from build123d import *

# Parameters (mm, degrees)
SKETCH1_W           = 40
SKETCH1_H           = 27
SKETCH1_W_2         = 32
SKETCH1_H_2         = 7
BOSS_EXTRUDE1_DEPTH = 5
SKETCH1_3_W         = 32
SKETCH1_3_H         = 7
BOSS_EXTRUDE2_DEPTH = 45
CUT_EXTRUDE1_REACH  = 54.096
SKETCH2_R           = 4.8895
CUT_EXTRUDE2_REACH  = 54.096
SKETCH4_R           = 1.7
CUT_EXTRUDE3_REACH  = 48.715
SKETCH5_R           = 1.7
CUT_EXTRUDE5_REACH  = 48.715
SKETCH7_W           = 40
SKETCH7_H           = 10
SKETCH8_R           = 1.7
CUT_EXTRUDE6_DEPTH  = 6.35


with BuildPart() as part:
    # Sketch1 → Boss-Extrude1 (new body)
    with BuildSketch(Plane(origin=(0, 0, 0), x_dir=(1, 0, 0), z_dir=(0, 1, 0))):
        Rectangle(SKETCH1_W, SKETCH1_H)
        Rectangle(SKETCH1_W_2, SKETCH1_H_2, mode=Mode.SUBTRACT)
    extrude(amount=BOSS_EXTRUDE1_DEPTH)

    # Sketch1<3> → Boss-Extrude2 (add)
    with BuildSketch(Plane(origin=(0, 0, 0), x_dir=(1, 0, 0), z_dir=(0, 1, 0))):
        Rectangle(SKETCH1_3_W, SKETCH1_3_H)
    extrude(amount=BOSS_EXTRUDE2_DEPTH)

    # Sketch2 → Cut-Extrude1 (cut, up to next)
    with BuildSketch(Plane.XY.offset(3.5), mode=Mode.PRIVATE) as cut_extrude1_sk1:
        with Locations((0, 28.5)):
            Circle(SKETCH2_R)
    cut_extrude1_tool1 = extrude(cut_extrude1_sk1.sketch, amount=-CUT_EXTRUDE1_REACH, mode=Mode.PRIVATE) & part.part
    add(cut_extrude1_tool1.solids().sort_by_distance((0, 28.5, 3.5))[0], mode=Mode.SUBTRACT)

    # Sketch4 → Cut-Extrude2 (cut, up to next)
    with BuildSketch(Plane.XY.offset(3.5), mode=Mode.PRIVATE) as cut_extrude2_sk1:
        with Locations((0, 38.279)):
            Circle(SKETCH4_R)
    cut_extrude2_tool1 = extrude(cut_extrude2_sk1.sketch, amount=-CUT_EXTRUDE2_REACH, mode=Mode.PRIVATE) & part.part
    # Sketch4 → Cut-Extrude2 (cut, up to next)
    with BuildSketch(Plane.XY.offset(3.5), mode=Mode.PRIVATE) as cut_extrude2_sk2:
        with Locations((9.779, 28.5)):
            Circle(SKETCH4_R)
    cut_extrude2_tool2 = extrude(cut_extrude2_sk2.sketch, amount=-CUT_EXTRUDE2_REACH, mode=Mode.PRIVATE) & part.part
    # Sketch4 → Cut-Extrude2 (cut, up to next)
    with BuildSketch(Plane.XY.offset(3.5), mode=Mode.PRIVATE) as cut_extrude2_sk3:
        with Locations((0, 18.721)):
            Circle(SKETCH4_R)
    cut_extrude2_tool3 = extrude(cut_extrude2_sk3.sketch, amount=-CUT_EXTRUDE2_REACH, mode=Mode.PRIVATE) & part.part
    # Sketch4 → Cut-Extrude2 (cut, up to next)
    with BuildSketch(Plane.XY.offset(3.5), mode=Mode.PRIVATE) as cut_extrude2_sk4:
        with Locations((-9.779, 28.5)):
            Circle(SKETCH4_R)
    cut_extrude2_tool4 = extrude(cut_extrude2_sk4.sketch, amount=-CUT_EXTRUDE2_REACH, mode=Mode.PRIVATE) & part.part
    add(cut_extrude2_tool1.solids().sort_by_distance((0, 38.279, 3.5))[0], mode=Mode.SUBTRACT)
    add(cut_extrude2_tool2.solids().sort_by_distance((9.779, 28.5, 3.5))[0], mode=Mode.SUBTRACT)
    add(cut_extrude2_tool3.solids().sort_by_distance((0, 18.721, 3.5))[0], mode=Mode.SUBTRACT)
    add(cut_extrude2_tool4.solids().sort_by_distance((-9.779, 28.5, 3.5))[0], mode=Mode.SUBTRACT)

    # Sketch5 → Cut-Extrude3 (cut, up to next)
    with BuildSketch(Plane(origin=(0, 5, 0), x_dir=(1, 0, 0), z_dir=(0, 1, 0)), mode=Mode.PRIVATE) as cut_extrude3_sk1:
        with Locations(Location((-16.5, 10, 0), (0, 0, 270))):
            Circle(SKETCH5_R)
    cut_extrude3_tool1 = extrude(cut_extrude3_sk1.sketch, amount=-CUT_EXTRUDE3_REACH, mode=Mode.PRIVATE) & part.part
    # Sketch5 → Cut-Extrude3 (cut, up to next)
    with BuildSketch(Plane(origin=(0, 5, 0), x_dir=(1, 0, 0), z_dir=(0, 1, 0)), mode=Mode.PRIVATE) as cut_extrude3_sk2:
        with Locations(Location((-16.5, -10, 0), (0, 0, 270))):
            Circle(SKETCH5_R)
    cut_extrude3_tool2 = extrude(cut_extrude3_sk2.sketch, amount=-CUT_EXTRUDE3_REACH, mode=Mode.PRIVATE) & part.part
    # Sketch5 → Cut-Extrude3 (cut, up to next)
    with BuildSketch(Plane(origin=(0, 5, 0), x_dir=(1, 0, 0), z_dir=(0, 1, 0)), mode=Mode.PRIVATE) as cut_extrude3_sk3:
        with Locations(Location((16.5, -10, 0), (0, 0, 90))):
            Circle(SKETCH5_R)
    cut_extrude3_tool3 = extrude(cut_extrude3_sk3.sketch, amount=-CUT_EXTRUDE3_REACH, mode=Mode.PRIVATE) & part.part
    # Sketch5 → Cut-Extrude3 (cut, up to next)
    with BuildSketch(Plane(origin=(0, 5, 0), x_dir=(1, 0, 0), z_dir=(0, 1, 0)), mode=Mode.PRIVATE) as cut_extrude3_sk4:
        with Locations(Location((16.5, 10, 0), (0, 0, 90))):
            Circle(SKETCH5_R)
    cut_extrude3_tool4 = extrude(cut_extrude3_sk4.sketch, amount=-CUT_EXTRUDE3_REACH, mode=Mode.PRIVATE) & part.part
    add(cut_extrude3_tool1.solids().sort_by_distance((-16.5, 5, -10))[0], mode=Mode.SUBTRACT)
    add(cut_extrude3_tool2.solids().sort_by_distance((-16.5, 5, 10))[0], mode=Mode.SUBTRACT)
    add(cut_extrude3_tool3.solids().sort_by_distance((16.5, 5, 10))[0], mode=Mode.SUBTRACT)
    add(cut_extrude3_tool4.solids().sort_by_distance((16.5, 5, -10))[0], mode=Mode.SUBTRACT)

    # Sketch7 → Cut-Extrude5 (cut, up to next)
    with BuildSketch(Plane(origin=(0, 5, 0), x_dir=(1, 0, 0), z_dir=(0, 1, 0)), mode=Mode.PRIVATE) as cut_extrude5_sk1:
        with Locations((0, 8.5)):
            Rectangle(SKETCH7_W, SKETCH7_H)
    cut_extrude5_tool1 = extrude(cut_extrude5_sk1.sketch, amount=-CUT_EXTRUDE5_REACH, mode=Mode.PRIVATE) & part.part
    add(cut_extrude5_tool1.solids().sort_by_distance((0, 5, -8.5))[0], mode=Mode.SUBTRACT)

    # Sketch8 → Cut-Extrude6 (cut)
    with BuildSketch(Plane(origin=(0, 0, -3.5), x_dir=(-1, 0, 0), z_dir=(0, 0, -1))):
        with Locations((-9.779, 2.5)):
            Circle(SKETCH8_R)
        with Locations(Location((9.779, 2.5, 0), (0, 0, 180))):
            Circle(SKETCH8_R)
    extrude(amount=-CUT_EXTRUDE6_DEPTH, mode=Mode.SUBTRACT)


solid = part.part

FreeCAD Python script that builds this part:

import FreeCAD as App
import Part
import Sketcher

V = App.Vector


def add_polygon(sketch, points):
    """Adds a closed chain of lines whose ends are joined by coincident constraints."""
    first, n = sketch.GeometryCount, len(points)
    for a, b in zip(points, points[1:] + points[:1]):
        sketch.addGeometry(Part.LineSegment(App.Vector(*a, 0), App.Vector(*b, 0)), False)
    for i in range(n):
        sketch.addConstraint(Sketcher.Constraint("Coincident", first + i, 2, first + (i + 1) % n, 1))

doc = App.newDocument("Part")
body = doc.addObject("PartDesign::Body", "Body")

sketch1 = body.newObject("Sketcher::SketchObject", "Sketch")
sketch1.AttachmentSupport = (doc.getObject("XZ_Plane"), [""])
sketch1.MapMode = "FlatFace"
add_polygon(sketch1, [(-20, -14), (-20, 14), (20, 14), (20, -14)])
add_polygon(sketch1, [(16, 4), (-16, 4), (-16, -4), (16, -4)])
sketch1.addConstraint([
    Sketcher.Constraint("Vertical", 0),
    Sketcher.Constraint("Horizontal", 1),
    Sketcher.Constraint("Vertical", 2),
    Sketcher.Constraint("Horizontal", 3),
    Sketcher.Constraint("Horizontal", 4),
    Sketcher.Constraint("Vertical", 5),
    Sketcher.Constraint("Horizontal", 6),
    Sketcher.Constraint("Vertical", 7),
    Sketcher.Constraint("Symmetric", 0, 2, 2, 2, -1, 1),
    Sketcher.Constraint("Symmetric", 4, 2, 6, 2, -1, 1),
    Sketcher.Constraint("DistanceX", 1, 1, 1, 2, 40.0),
    Sketcher.Constraint("DistanceX", 4, 2, 4, 1, 32.0),
    Sketcher.Constraint("DistanceY", 0, 1, 0, 2, 27.0),
    Sketcher.Constraint("DistanceY", 5, 2, 5, 1, 7.0),
])
pad1 = body.newObject("PartDesign::Pad", "Pad")
pad1.Profile = sketch1
pad1.Length = 5
pad1.Reversed = True

sketch2 = body.newObject("Sketcher::SketchObject", "Sketch001")
sketch2.AttachmentSupport = (doc.getObject("XZ_Plane"), [""])
sketch2.MapMode = "FlatFace"
add_polygon(sketch2, [(-16, -4), (-16, 4), (16, 4), (16, -4)])
sketch2.addConstraint([
    Sketcher.Constraint("Vertical", 0),
    Sketcher.Constraint("Horizontal", 1),
    Sketcher.Constraint("Vertical", 2),
    Sketcher.Constraint("Horizontal", 3),
    Sketcher.Constraint("Symmetric", 0, 2, 2, 2, -1, 1),
    Sketcher.Constraint("DistanceX", 1, 1, 1, 2, 32.0),
    Sketcher.Constraint("DistanceY", 0, 1, 0, 2, 7.0),
])
pad2 = body.newObject("PartDesign::Pad", "Pad001")
pad2.Profile = sketch2
pad2.Length = 45
pad2.Reversed = True

sketch3 = body.newObject("Sketcher::SketchObject", "Sketch002")
sketch3.AttachmentSupport = (doc.getObject("XY_Plane"), [""])
sketch3.MapMode = "FlatFace"
sketch3.AttachmentOffset = App.Placement(V(0, 0, 3.5), App.Rotation())
sketch3.addGeometry(Part.Circle(V(0, 28.5, 0), V(0, 0, 1), 4.9), False)
sketch3.addConstraint([
    Sketcher.Constraint("PointOnObject", 0, 3, -2),
    Sketcher.Constraint("Diameter", 0, 9.779),
    Sketcher.Constraint("DistanceY", -1, 1, 0, 3, 28.5),
])
pocket1 = body.newObject("PartDesign::Pocket", "Pocket")
pocket1.Profile = sketch3
pocket1.Type = "UpToFirst"

sketch4 = body.newObject("Sketcher::SketchObject", "Sketch003")
sketch4.AttachmentSupport = (doc.getObject("XY_Plane"), [""])
sketch4.MapMode = "FlatFace"
sketch4.AttachmentOffset = App.Placement(V(0, 0, 3.5), App.Rotation())
sketch4.addGeometry(Part.Circle(V(0, 38.3, 0), V(0, 0, 1), 1.7), False)
sketch4.addConstraint([
    Sketcher.Constraint("PointOnObject", 0, 3, -2),
    Sketcher.Constraint("Diameter", 0, 3.4),
    Sketcher.Constraint("DistanceY", -1, 1, 0, 3, 38.279),
])
pocket2 = body.newObject("PartDesign::Pocket", "Pocket001")
pocket2.Profile = sketch4
pocket2.Type = "UpToFirst"

sketch5 = body.newObject("Sketcher::SketchObject", "Sketch004")
sketch5.AttachmentSupport = (doc.getObject("XY_Plane"), [""])
sketch5.MapMode = "FlatFace"
sketch5.AttachmentOffset = App.Placement(V(0, 0, 3.5), App.Rotation())
sketch5.addGeometry(Part.Circle(V(9.8, 28.5, 0), V(0, 0, 1), 1.7), False)
sketch5.addConstraint([
    Sketcher.Constraint("Diameter", 0, 3.4),
    Sketcher.Constraint("DistanceY", -1, 1, 0, 3, 28.5),
    Sketcher.Constraint("DistanceX", -1, 1, 0, 3, 9.779),
])
pocket3 = body.newObject("PartDesign::Pocket", "Pocket002")
pocket3.Profile = sketch5
pocket3.Type = "UpToFirst"

sketch6 = body.newObject("Sketcher::SketchObject", "Sketch005")
sketch6.AttachmentSupport = (doc.getObject("XY_Plane"), [""])
sketch6.MapMode = "FlatFace"
sketch6.AttachmentOffset = App.Placement(V(0, 0, 3.5), App.Rotation())
sketch6.addGeometry(Part.Circle(V(0, 18.7, 0), V(0, 0, 1), 1.7), False)
sketch6.addConstraint([
    Sketcher.Constraint("PointOnObject", 0, 3, -2),
    Sketcher.Constraint("Diameter", 0, 3.4),
    Sketcher.Constraint("DistanceY", -1, 1, 0, 3, 18.721),
])
pocket4 = body.newObject("PartDesign::Pocket", "Pocket003")
pocket4.Profile = sketch6
pocket4.Type = "UpToFirst"

sketch7 = body.newObject("Sketcher::SketchObject", "Sketch006")
sketch7.AttachmentSupport = (doc.getObject("XY_Plane"), [""])
sketch7.MapMode = "FlatFace"
sketch7.AttachmentOffset = App.Placement(V(0, 0, 3.5), App.Rotation())
sketch7.addGeometry(Part.Circle(V(-9.8, 28.5, 0), V(0, 0, 1), 1.7), False)
sketch7.addConstraint([
    Sketcher.Constraint("Diameter", 0, 3.4),
    Sketcher.Constraint("DistanceY", -1, 1, 0, 3, 28.5),
    Sketcher.Constraint("DistanceX", 0, 3, -1, 1, 9.779),
])
pocket5 = body.newObject("PartDesign::Pocket", "Pocket004")
pocket5.Profile = sketch7
pocket5.Type = "UpToFirst"

sketch8 = body.newObject("Sketcher::SketchObject", "Sketch007")
sketch8.AttachmentSupport = (doc.getObject("XZ_Plane"), [""])
sketch8.MapMode = "FlatFace"
sketch8.AttachmentOffset = App.Placement(V(0, 0, -5), App.Rotation())
sketch8.addGeometry(Part.Circle(V(-16.5, -10, 0), V(0, 0, 1), 1.7), False)
sketch8.addConstraint([
    Sketcher.Constraint("Diameter", 0, 3.4),
    Sketcher.Constraint("DistanceY", 0, 3, -1, 1, 10.0),
    Sketcher.Constraint("DistanceX", 0, 3, -1, 1, 16.5),
])
pocket6 = body.newObject("PartDesign::Pocket", "Pocket005")
pocket6.Profile = sketch8
pocket6.Type = "UpToFirst"
pocket6.Reversed = True

sketch9 = body.newObject("Sketcher::SketchObject", "Sketch008")
sketch9.AttachmentSupport = (doc.getObject("XZ_Plane"), [""])
sketch9.MapMode = "FlatFace"
sketch9.AttachmentOffset = App.Placement(V(0, 0, -5), App.Rotation())
sketch9.addGeometry(Part.Circle(V(-16.5, 10, 0), V(0, 0, 1), 1.7), False)
sketch9.addConstraint([
    Sketcher.Constraint("Diameter", 0, 3.4),
    Sketcher.Constraint("DistanceY", -1, 1, 0, 3, 10.0),
    Sketcher.Constraint("DistanceX", 0, 3, -1, 1, 16.5),
])
pocket7 = body.newObject("PartDesign::Pocket", "Pocket006")
pocket7.Profile = sketch9
pocket7.Type = "UpToFirst"
pocket7.Reversed = True

sketch10 = body.newObject("Sketcher::SketchObject", "Sketch009")
sketch10.AttachmentSupport = (doc.getObject("XZ_Plane"), [""])
sketch10.MapMode = "FlatFace"
sketch10.AttachmentOffset = App.Placement(V(0, 0, -5), App.Rotation())
sketch10.addGeometry(Part.Circle(V(16.5, 10, 0), V(0, 0, 1), 1.7), False)
sketch10.addConstraint([
    Sketcher.Constraint("Diameter", 0, 3.4),
    Sketcher.Constraint("DistanceY", -1, 1, 0, 3, 10.0),
    Sketcher.Constraint("DistanceX", -1, 1, 0, 3, 16.5),
])
pocket8 = body.newObject("PartDesign::Pocket", "Pocket007")
pocket8.Profile = sketch10
pocket8.Type = "UpToFirst"
pocket8.Reversed = True

sketch11 = body.newObject("Sketcher::SketchObject", "Sketch010")
sketch11.AttachmentSupport = (doc.getObject("XZ_Plane"), [""])
sketch11.MapMode = "FlatFace"
sketch11.AttachmentOffset = App.Placement(V(0, 0, -5), App.Rotation())
sketch11.addGeometry(Part.Circle(V(16.5, -10, 0), V(0, 0, 1), 1.7), False)
sketch11.addConstraint([
    Sketcher.Constraint("Diameter", 0, 3.4),
    Sketcher.Constraint("DistanceY", 0, 3, -1, 1, 10.0),
    Sketcher.Constraint("DistanceX", -1, 1, 0, 3, 16.5),
])
pocket9 = body.newObject("PartDesign::Pocket", "Pocket008")
pocket9.Profile = sketch11
pocket9.Type = "UpToFirst"
pocket9.Reversed = True

sketch12 = body.newObject("Sketcher::SketchObject", "Sketch011")
sketch12.AttachmentSupport = (doc.getObject("XZ_Plane"), [""])
sketch12.MapMode = "FlatFace"
sketch12.AttachmentOffset = App.Placement(V(0, 0, -5), App.Rotation())
add_polygon(sketch12, [(-20, -14), (-20, -4), (20, -4), (20, -14)])
sketch12.addConstraint([
    Sketcher.Constraint("Vertical", 0),
    Sketcher.Constraint("Horizontal", 1),
    Sketcher.Constraint("Vertical", 2),
    Sketcher.Constraint("Horizontal", 3),
    Sketcher.Constraint("DistanceX", 1, 1, 1, 2, 40.0),
    Sketcher.Constraint("DistanceY", 0, 1, 0, 2, 10.0),
    Sketcher.Constraint("DistanceX", 0, 2, -1, 1, 20.0),
    Sketcher.Constraint("DistanceY", 0, 2, -1, 1, 3.5),
])
pocket10 = body.newObject("PartDesign::Pocket", "Pocket009")
pocket10.Profile = sketch12
pocket10.Type = "UpToFirst"
pocket10.Reversed = True

sketch13 = body.newObject("Sketcher::SketchObject", "Sketch012")
sketch13.AttachmentSupport = (doc.getObject("XY_Plane"), [""])
sketch13.MapMode = "FlatFace"
sketch13.AttachmentOffset = App.Placement(V(0, 0, -3.5), App.Rotation())
sketch13.addGeometry([
    Part.Circle(V(9.8, 2.5, 0), V(0, 0, 1), 1.7),
    Part.Circle(V(-9.8, 2.5, 0), V(0, 0, 1), 1.7),
], False)
sketch13.addConstraint([
    Sketcher.Constraint("Equal", 0, 1),
    Sketcher.Constraint("Symmetric", 0, 3, 1, 3, -2),
    Sketcher.Constraint("Diameter", 0, 3.4),
    Sketcher.Constraint("DistanceY", -1, 1, 0, 3, 2.5),
    Sketcher.Constraint("DistanceX", -1, 1, 0, 3, 9.779),
])
pocket11 = body.newObject("PartDesign::Pocket", "Pocket010")
pocket11.Profile = sketch13
pocket11.Length = 6.35
pocket11.Reversed = True

doc.recompute()
